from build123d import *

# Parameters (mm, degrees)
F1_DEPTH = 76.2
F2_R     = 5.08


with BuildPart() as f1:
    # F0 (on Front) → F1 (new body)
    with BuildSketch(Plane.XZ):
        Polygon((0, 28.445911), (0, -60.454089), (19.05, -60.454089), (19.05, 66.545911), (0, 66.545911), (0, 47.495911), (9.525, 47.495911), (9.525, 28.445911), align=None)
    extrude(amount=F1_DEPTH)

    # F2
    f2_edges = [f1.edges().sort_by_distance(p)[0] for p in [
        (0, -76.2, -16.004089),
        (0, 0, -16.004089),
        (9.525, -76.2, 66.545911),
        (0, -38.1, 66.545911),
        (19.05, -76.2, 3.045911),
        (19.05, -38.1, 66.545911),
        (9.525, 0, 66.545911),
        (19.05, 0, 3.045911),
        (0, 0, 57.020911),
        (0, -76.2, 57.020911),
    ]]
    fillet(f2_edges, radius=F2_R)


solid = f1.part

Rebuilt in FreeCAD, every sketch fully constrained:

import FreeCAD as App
import Part
import Sketcher
Q = App.Units.Quantity


def edges_at(feature, points):
    """Names of the edges that pass closest to the given points."""
    edges = feature.Shape.Edges
    near = lambda p: min(range(len(edges)), key=lambda i: edges[i].distToShape(Part.Vertex(*p))[0])
    return sorted({f"Edge{near(p) + 1}" for p in points})


def add_polygon(sketch, points):
    """Adds a closed chain of lines whose ends are joined by coincident constraints."""
    first, n = sketch.GeometryCount, len(points)
    for a, b in zip(points, points[1:] + points[:1]):
        sketch.addGeometry(Part.LineSegment(App.Vector(*a, 0), App.Vector(*b, 0)), False)
    for i in range(n):
        sketch.addConstraint(Sketcher.Constraint("Coincident", first + i, 2, first + (i + 1) % n, 1))

doc = App.newDocument("Part")
body = doc.addObject("PartDesign::Body", "Body")

# Sketch on XZ plane
sketch1 = body.newObject("Sketcher::SketchObject", "Sketch")
sketch1.AttachmentSupport = (doc.getObject("XZ_Plane"), [""])
sketch1.MapMode = "FlatFace"
add_polygon(sketch1, [(0, 28.445911), (0, -60.454089), (19.05, -60.454089), (19.05, 66.545911), (0, 66.545911), (0, 47.495911), (9.525, 47.495911), (9.525, 28.445911)])  # lines 0-7
sketch1.addConstraint(Sketcher.Constraint("Vertical", 0))
sketch1.addConstraint(Sketcher.Constraint("Horizontal", 1))
sketch1.addConstraint(Sketcher.Constraint("Vertical", 2))
sketch1.addConstraint(Sketcher.Constraint("Horizontal", 3))
sketch1.addConstraint(Sketcher.Constraint("Vertical", 4))
sketch1.addConstraint(Sketcher.Constraint("Horizontal", 5))
sketch1.addConstraint(Sketcher.Constraint("Vertical", 6))
sketch1.addConstraint(Sketcher.Constraint("Horizontal", 7))
sketch1.addConstraint(Sketcher.Constraint("PointOnObject", 0, 2, -2))
sketch1.addConstraint(Sketcher.Constraint("PointOnObject", 3, 2, -2))
sketch1.addConstraint(Sketcher.Constraint("Equal", 3, 4))
sketch1.addConstraint(Sketcher.Constraint("Equal", 4, 6))
sketch1.addConstraint(Sketcher.Constraint("DistanceY", 2, 1, 2, 2, Q("5 in")))
sketch1.addConstraint(Sketcher.Constraint("DistanceY", 0, 2, 0, 1, Q("3.5 in")))
sketch1.addConstraint(Sketcher.Constraint("DistanceX", 5, 1, 5, 2, Q("0.375 in")))
sketch1.addConstraint(Sketcher.Constraint("DistanceY", 0, 2, -1, 1, 60.454089))
pad1 = body.newObject("PartDesign::Pad", "Pad")
pad1.Profile = sketch1
pad1.Length = Q("3 in")
doc.recompute()

fillet = body.newObject("PartDesign::Fillet", "Fillet")
fillet.Base = (pad1, edges_at(pad1, [
    (0, -76.2, -16.004),
    (0, 0, -16.004),
    (9.525, -76.2, 66.546),
    (0, -38.1, 66.546),
    (19.05, -76.2, 3.046),
    (19.05, -38.1, 66.546),
    (9.525, 0, 66.546),
    (19.05, 0, 3.046),
    (0, 0, 57.021),
    (0, -76.2, 57.021),
]))
fillet.Radius = Q("0.2 in")

doc.recompute()
